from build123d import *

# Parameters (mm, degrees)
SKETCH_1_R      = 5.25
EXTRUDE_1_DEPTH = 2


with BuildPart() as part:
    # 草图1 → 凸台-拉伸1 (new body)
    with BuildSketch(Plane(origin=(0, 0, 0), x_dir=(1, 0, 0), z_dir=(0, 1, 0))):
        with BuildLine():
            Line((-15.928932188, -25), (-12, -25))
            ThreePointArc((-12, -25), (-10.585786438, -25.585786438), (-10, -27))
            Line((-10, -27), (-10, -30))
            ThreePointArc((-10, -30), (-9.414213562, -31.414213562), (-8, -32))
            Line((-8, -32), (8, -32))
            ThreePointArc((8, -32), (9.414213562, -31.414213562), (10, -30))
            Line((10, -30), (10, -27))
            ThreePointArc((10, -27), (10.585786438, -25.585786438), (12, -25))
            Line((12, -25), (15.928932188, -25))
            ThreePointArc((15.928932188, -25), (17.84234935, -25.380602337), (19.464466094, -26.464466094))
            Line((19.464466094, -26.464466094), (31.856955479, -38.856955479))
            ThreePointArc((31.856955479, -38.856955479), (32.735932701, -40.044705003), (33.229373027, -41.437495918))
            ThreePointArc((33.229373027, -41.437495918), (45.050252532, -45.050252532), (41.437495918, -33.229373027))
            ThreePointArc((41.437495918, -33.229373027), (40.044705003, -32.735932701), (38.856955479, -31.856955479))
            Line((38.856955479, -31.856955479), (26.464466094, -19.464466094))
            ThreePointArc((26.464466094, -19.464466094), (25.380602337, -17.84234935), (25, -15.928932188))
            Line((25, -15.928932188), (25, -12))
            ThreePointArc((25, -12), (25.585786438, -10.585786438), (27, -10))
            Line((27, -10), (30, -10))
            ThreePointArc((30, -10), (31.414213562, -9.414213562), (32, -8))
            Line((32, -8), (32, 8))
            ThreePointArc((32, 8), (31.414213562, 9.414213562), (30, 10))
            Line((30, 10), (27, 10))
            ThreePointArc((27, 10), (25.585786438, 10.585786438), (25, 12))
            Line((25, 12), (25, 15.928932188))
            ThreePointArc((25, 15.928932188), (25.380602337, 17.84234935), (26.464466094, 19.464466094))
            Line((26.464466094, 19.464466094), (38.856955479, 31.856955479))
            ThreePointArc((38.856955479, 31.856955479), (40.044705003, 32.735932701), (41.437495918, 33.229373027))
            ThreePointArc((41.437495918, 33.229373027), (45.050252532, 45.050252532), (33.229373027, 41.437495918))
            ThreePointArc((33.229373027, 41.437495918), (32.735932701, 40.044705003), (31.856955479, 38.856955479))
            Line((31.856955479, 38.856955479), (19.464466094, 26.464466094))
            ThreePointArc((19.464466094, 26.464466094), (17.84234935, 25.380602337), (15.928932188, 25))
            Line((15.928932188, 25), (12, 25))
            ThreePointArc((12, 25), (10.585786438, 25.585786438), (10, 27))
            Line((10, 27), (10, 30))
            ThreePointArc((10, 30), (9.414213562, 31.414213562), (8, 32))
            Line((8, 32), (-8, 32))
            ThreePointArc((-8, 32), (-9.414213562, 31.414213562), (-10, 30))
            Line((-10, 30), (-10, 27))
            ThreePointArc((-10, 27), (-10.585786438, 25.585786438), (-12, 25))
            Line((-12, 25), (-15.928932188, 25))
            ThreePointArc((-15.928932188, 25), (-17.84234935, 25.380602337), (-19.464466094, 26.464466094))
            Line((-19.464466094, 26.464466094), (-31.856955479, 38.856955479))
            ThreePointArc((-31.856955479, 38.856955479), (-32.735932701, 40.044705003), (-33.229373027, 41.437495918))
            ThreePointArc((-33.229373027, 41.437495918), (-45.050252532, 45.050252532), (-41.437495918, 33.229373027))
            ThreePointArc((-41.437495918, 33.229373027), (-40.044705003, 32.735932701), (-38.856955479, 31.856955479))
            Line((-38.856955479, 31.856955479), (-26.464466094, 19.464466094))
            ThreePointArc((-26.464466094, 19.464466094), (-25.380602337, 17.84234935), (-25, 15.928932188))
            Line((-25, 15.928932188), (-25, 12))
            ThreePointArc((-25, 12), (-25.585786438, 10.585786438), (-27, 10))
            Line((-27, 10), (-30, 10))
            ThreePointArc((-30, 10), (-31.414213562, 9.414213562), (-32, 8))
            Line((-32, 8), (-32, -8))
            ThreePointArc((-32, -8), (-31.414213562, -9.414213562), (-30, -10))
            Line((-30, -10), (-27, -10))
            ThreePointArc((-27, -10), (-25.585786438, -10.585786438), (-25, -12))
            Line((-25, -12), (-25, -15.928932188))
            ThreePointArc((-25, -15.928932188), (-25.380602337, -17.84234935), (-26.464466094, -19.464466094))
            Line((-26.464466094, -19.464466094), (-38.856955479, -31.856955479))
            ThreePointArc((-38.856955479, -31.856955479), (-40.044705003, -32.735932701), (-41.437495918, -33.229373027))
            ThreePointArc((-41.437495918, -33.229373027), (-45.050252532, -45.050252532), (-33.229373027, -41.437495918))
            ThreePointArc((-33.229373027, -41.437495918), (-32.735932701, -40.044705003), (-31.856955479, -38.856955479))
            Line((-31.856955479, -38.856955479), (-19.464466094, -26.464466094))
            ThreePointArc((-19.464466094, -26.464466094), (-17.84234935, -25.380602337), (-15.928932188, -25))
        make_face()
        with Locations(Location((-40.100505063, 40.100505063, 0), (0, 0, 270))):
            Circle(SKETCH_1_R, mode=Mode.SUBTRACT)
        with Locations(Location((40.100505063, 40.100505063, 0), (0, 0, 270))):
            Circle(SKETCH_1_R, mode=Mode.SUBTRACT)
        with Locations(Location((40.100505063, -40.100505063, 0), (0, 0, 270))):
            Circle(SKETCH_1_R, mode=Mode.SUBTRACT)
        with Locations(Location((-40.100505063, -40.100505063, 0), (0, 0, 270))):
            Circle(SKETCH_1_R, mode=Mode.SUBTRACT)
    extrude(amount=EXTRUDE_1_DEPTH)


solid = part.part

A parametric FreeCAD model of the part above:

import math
import FreeCAD as App
import Part
import Sketcher

V = App.Vector

doc = App.newDocument("Part")
body = doc.addObject("PartDesign::Body", "Body")

sketch1 = body.newObject("Sketcher::SketchObject", "Sketch")
sketch1.AttachmentSupport = (doc.getObject("XZ_Plane"), [""])
sketch1.MapMode = "FlatFace"
sketch1.addGeometry(Part.LineSegment(V(-15.9, 25, 0), V(-12, 25, 0)), False)
sketch1.addGeometry(Part.ArcOfCircle(Part.Circle(V(-12, 27, 0), V(0, 0, 1), 2), math.radians(-90), math.radians(0)), False)
sketch1.addGeometry(Part.LineSegment(V(-10, 27, 0), V(-10, 30, 0)), False)
sketch1.addGeometry(Part.ArcOfCircle(Part.Circle(V(-8, 30, 0), V(0, 0, 1), 2), math.radians(90), math.radians(180)), False)
sketch1.addGeometry(Part.LineSegment(V(-8, 32, 0), V(8, 32, 0)), False)
sketch1.addGeometry(Part.ArcOfCircle(Part.Circle(V(8, 30, 0), V(0, 0, 1), 2), math.radians(0), math.radians(90)), False)
sketch1.addGeometry(Part.LineSegment(V(10, 30, 0), V(10, 27, 0)), False)
sketch1.addGeometry(Part.ArcOfCircle(Part.Circle(V(12, 27, 0), V(0, 0, 1), 2), math.radians(-180), math.radians(-90)), False)
sketch1.addGeometry(Part.LineSegment(V(12, 25, 0), V(15.9, 25, 0)), False)
sketch1.addGeometry(Part.ArcOfCircle(Part.Circle(V(15.9, 30, 0), V(0, 0, 1), 5), math.radians(-90), math.radians(-45)), False)
sketch1.addGeometry(Part.LineSegment(V(19.5, 26.5, 0), V(31.9, 38.9, 0)), False)
sketch1.addGeometry(Part.ArcOfCircle(Part.Circle(V(28.3, 42.4, 0), V(0, 0, 1), 5), math.radians(-45), math.radians(-11)), False)
sketch1.addGeometry(Part.ArcOfCircle(Part.Circle(V(40.1, 40.1, 0), V(0, 0, 1), 7), math.radians(-79), math.radians(169)), False)
sketch1.addGeometry(Part.ArcOfCircle(Part.Circle(V(42.4, 28.3, 0), V(0, 0, 1), 5), math.radians(101), math.radians(135)), False)
sketch1.addGeometry(Part.LineSegment(V(38.9, 31.9, 0), V(26.5, 19.5, 0)), False)
sketch1.addGeometry(Part.ArcOfCircle(Part.Circle(V(30, 15.9, 0), V(0, 0, 1), 5), math.radians(135), math.radians(180)), False)
sketch1.addGeometry(Part.LineSegment(V(25, 15.9, 0), V(25, 12, 0)), False)
sketch1.addGeometry(Part.ArcOfCircle(Part.Circle(V(27, 12, 0), V(0, 0, 1), 2), math.radians(-180), math.radians(-90)), False)
sketch1.addGeometry(Part.LineSegment(V(27, 10, 0), V(30, 10, 0)), False)
sketch1.addGeometry(Part.ArcOfCircle(Part.Circle(V(30, 8, 0), V(0, 0, 1), 2), math.radians(0), math.radians(90)), False)
sketch1.addGeometry(Part.LineSegment(V(32, 8, 0), V(32, -8, 0)), False)
sketch1.addGeometry(Part.ArcOfCircle(Part.Circle(V(30, -8, 0), V(0, 0, 1), 2), math.radians(-90), math.radians(0)), False)
sketch1.addGeometry(Part.LineSegment(V(30, -10, 0), V(27, -10, 0)), False)
sketch1.addGeometry(Part.ArcOfCircle(Part.Circle(V(27, -12, 0), V(0, 0, 1), 2), math.radians(90), math.radians(180)), False)
sketch1.addGeometry(Part.LineSegment(V(25, -12, 0), V(25, -15.9, 0)), False)
sketch1.addGeometry(Part.ArcOfCircle(Part.Circle(V(30, -15.9, 0), V(0, 0, 1), 5), math.radians(180), math.radians(225)), False)
sketch1.addGeometry(Part.LineSegment(V(26.5, -19.5, 0), V(38.9, -31.9, 0)), False)
sketch1.addGeometry(Part.ArcOfCircle(Part.Circle(V(42.4, -28.3, 0), V(0, 0, 1), 5), math.radians(-135), math.radians(-101)), False)
sketch1.addGeometry(Part.ArcOfCircle(Part.Circle(V(40.1, -40.1, 0), V(0, 0, 1), 7), math.radians(-169), math.radians(79)), False)
sketch1.addGeometry(Part.ArcOfCircle(Part.Circle(V(28.3, -42.4, 0), V(0, 0, 1), 5), math.radians(11), math.radians(45)), False)
sketch1.addGeometry(Part.LineSegment(V(31.9, -38.9, 0), V(19.5, -26.5, 0)), False)
sketch1.addGeometry(Part.ArcOfCircle(Part.Circle(V(15.9, -30, 0), V(0, 0, 1), 5), math.radians(45), math.radians(90)), False)
sketch1.addGeometry(Part.LineSegment(V(15.9, -25, 0), V(12, -25, 0)), False)
sketch1.addGeometry(Part.ArcOfCircle(Part.Circle(V(12, -27, 0), V(0, 0, 1), 2), math.radians(90), math.radians(180)), False)
sketch1.addGeometry(Part.LineSegment(V(10, -27, 0), V(10, -30, 0)), False)
sketch1.addGeometry(Part.ArcOfCircle(Part.Circle(V(8, -30, 0), V(0, 0, 1), 2), math.radians(-90), math.radians(0)), False)
sketch1.addGeometry(Part.LineSegment(V(8, -32, 0), V(-8, -32, 0)), False)
sketch1.addGeometry(Part.ArcOfCircle(Part.Circle(V(-8, -30, 0), V(0, 0, 1), 2), math.radians(-180), math.radians(-90)), False)
sketch1.addGeometry(Part.LineSegment(V(-10, -30, 0), V(-10, -27, 0)), False)
sketch1.addGeometry(Part.ArcOfCircle(Part.Circle(V(-12, -27, 0), V(0, 0, 1), 2), math.radians(0), math.radians(90)), False)
sketch1.addGeometry(Part.LineSegment(V(-12, -25, 0), V(-15.9, -25, 0)), False)
sketch1.addGeometry(Part.ArcOfCircle(Part.Circle(V(-15.9, -30, 0), V(0, 0, 1), 5), math.radians(90), math.radians(135)), False)
sketch1.addGeometry(Part.LineSegment(V(-19.5, -26.5, 0), V(-31.9, -38.9, 0)), False)
sketch1.addGeometry(Part.ArcOfCircle(Part.Circle(V(-28.3, -42.4, 0), V(0, 0, 1), 5), math.radians(135), math.radians(169)), False)
sketch1.addGeometry(Part.ArcOfCircle(Part.Circle(V(-40.1, -40.1, 0), V(0, 0, 1), 7), math.radians(101), math.radians(349)), False)
sketch1.addGeometry(Part.ArcOfCircle(Part.Circle(V(-42.4, -28.3, 0), V(0, 0, 1), 5), math.radians(-79), math.radians(-45)), False)
sketch1.addGeometry(Part.LineSegment(V(-38.9, -31.9, 0), V(-26.5, -19.5, 0)), False)
sketch1.addGeometry(Part.ArcOfCircle(Part.Circle(V(-30, -15.9, 0), V(0, 0, 1), 5), math.radians(-45), math.radians(0)), False)
sketch1.addGeometry(Part.LineSegment(V(-25, -15.9, 0), V(-25, -12, 0)), False)
sketch1.addGeometry(Part.ArcOfCircle(Part.Circle(V(-27, -12, 0), V(0, 0, 1), 2), math.radians(0), math.radians(90)), False)
sketch1.addGeometry(Part.LineSegment(V(-27, -10, 0), V(-30, -10, 0)), False)
sketch1.addGeometry(Part.ArcOfCircle(Part.Circle(V(-30, -8, 0), V(0, 0, 1), 2), math.radians(-180), math.radians(-90)), False)
sketch1.addGeometry(Part.LineSegment(V(-32, -8, 0), V(-32, 8, 0)), False)
sketch1.addGeometry(Part.ArcOfCircle(Part.Circle(V(-30, 8, 0), V(0, 0, 1), 2), math.radians(90), math.radians(180)), False)
sketch1.addGeometry(Part.LineSegment(V(-30, 10, 0), V(-27, 10, 0)), False)
sketch1.addGeometry(Part.ArcOfCircle(Part.Circle(V(-27, 12, 0), V(0, 0, 1), 2), math.radians(-90), math.radians(0)), False)
sketch1.addGeometry(Part.LineSegment(V(-25, 12, 0), V(-25, 15.9, 0)), False)
sketch1.addGeometry(Part.ArcOfCircle(Part.Circle(V(-30, 15.9, 0), V(0, 0, 1), 5), math.radians(0), math.radians(45)), False)
sketch1.addGeometry(Part.LineSegment(V(-26.5, 19.5, 0), V(-38.9, 31.9, 0)), False)
sketch1.addGeometry(Part.ArcOfCircle(Part.Circle(V(-42.4, 28.3, 0), V(0, 0, 1), 5), math.radians(45), math.radians(79)), False)
sketch1.addGeometry(Part.ArcOfCircle(Part.Circle(V(-40.1, 40.1, 0), V(0, 0, 1), 7), math.radians(11), math.radians(259)), False)
sketch1.addGeometry(Part.ArcOfCircle(Part.Circle(V(-28.3, 42.4, 0), V(0, 0, 1), 5), math.radians(-169), math.radians(-135)), False)
sketch1.addGeometry(Part.LineSegment(V(-31.9, 38.9, 0), V(-19.5, 26.5, 0)), False)
sketch1.addGeometry(Part.ArcOfCircle(Part.Circle(V(-15.9, 30, 0), V(0, 0, 1), 5), math.radians(-135), math.radians(-90)), False)
sketch1.addGeometry(Part.Circle(V(-40.1, 40.1, 0), V(0, 0, 1), 5.2), False)
sketch1.addGeometry(Part.Circle(V(40.1, 40.1, 0), V(0, 0, 1), 5.2), False)
sketch1.addGeometry(Part.Circle(V(-40.1, -40.1, 0), V(0, 0, 1), 5.2), False)
sketch1.addGeometry(Part.Circle(V(40.1, -40.1, 0), V(0, 0, 1), 5.2), False)
sketch1.addConstraint(Sketcher.Constraint("Tangent", 0, 2, 1, 1))
sketch1.addConstraint(Sketcher.Constraint("Tangent", 1, 2, 2, 1))
sketch1.addConstraint(Sketcher.Constraint("Tangent", 2, 2, 3, 2))
sketch1.addConstraint(Sketcher.Constraint("Tangent", 3, 1, 4, 1))
sketch1.addConstraint(Sketcher.Constraint("Tangent", 4, 2, 5, 2))
sketch1.addConstraint(Sketcher.Constraint("Tangent", 5, 1, 6, 1))
sketch1.addConstraint(Sketcher.Constraint("Tangent", 6, 2, 7, 1))
sketch1.addConstraint(Sketcher.Constraint("Tangent", 7, 2, 8, 1))
sketch1.addConstraint(Sketcher.Constraint("Tangent", 8, 2, 9, 1))
sketch1.addConstraint(Sketcher.Constraint("Tangent", 9, 2, 10, 1))
sketch1.addConstraint(Sketcher.Constraint("Tangent", 10, 2, 11, 1))
sketch1.addConstraint(Sketcher.Constraint("Tangent", 11, 2, 12, 2))
sketch1.addConstraint(Sketcher.Constraint("Tangent", 12, 1, 13, 1))
sketch1.addConstraint(Sketcher.Constraint("Tangent", 13, 2, 14, 1))
sketch1.addConstraint(Sketcher.Constraint("Tangent", 14, 2, 15, 1))
sketch1.addConstraint(Sketcher.Constraint("Tangent", 15, 2, 16, 1))
sketch1.addConstraint(Sketcher.Constraint("Tangent", 16, 2, 17, 1))
sketch1.addConstraint(Sketcher.Constraint("Tangent", 17, 2, 18, 1))
sketch1.addConstraint(Sketcher.Constraint("Tangent", 18, 2, 19, 2))
sketch1.addConstraint(Sketcher.Constraint("Tangent", 19, 1, 20, 1))
sketch1.addConstraint(Sketcher.Constraint("Tangent", 20, 2, 21, 2))
sketch1.addConstraint(Sketcher.Constraint("Tangent", 21, 1, 22, 1))
sketch1.addConstraint(Sketcher.Constraint("Tangent", 22, 2, 23, 1))
sketch1.addConstraint(Sketcher.Constraint("Tangent", 23, 2, 24, 1))
sketch1.addConstraint(Sketcher.Constraint("Tangent", 24, 2, 25, 1))
sketch1.addConstraint(Sketcher.Constraint("Tangent", 25, 2, 26, 1))
sketch1.addConstraint(Sketcher.Constraint("Tangent", 26, 2, 27, 1))
sketch1.addConstraint(Sketcher.Constraint("Tangent", 27, 2, 28, 2))
sketch1.addConstraint(Sketcher.Constraint("Tangent", 28, 1, 29, 1))
sketch1.addConstraint(Sketcher.Constraint("Tangent", 29, 2, 30, 1))
sketch1.addConstraint(Sketcher.Constraint("Tangent", 30, 2, 31, 1))
sketch1.addConstraint(Sketcher.Constraint("Tangent", 31, 2, 32, 1))
sketch1.addConstraint(Sketcher.Constraint("Tangent", 32, 2, 33, 1))
sketch1.addConstraint(Sketcher.Constraint("Tangent", 33, 2, 34, 1))
sketch1.addConstraint(Sketcher.Constraint("Tangent", 34, 2, 35, 2))
sketch1.addConstraint(Sketcher.Constraint("Tangent", 35, 1, 36, 1))
sketch1.addConstraint(Sketcher.Constraint("Tangent", 36, 2, 37, 2))
sketch1.addConstraint(Sketcher.Constraint("Tangent", 37, 1, 38, 1))
sketch1.addConstraint(Sketcher.Constraint("Tangent", 38, 2, 39, 1))
sketch1.addConstraint(Sketcher.Constraint("Tangent", 39, 2, 40, 1))
sketch1.addConstraint(Sketcher.Constraint("Tangent", 40, 2, 41, 1))
sketch1.addConstraint(Sketcher.Constraint("Tangent", 41, 2, 42, 1))
sketch1.addConstraint(Sketcher.Constraint("Tangent", 42, 2, 43, 1))
sketch1.addConstraint(Sketcher.Constraint("Tangent", 43, 2, 44, 2))
sketch1.addConstraint(Sketcher.Constraint("Tangent", 44, 1, 45, 1))
sketch1.addConstraint(Sketcher.Constraint("Tangent", 45, 2, 46, 1))
sketch1.addConstraint(Sketcher.Constraint("Tangent", 46, 2, 47, 1))
sketch1.addConstraint(Sketcher.Constraint("Tangent", 47, 2, 48, 1))
sketch1.addConstraint(Sketcher.Constraint("Tangent", 48, 2, 49, 1))
sketch1.addConstraint(Sketcher.Constraint("Tangent", 49, 2, 50, 1))
sketch1.addConstraint(Sketcher.Constraint("Tangent", 50, 2, 51, 2))
sketch1.addConstraint(Sketcher.Constraint("Tangent", 51, 1, 52, 1))
sketch1.addConstraint(Sketcher.Constraint("Tangent", 52, 2, 53, 2))
sketch1.addConstraint(Sketcher.Constraint("Tangent", 53, 1, 54, 1))
sketch1.addConstraint(Sketcher.Constraint("Tangent", 54, 2, 55, 1))
sketch1.addConstraint(Sketcher.Constraint("Tangent", 55, 2, 56, 1))
sketch1.addConstraint(Sketcher.Constraint("Tangent", 56, 2, 57, 1))
sketch1.addConstraint(Sketcher.Constraint("Tangent", 57, 2, 58, 1))
sketch1.addConstraint(Sketcher.Constraint("Tangent", 58, 2, 59, 1))
sketch1.addConstraint(Sketcher.Constraint("Tangent", 59, 2, 60, 2))
sketch1.addConstraint(Sketcher.Constraint("Tangent", 60, 1, 61, 1))
sketch1.addConstraint(Sketcher.Constraint("Tangent", 61, 2, 62, 1))
sketch1.addConstraint(Sketcher.Constraint("Tangent", 62, 2, 63, 1))
sketch1.addConstraint(Sketcher.Constraint("Tangent", 63, 2, 0, 1))
sketch1.addConstraint(Sketcher.Constraint("Horizontal", 0))
sketch1.addConstraint(Sketcher.Constraint("Vertical", 2))
sketch1.addConstraint(Sketcher.Constraint("Horizontal", 4))
sketch1.addConstraint(Sketcher.Constraint("Vertical", 6))
sketch1.addConstraint(Sketcher.Constraint("Horizontal", 8))
sketch1.addConstraint(Sketcher.Constraint("Vertical", 16))
sketch1.addConstraint(Sketcher.Constraint("Horizontal", 18))
sketch1.addConstraint(Sketcher.Constraint("Vertical", 20))
sketch1.addConstraint(Sketcher.Constraint("Horizontal", 22))
sketch1.addConstraint(Sketcher.Constraint("Vertical", 24))
sketch1.addConstraint(Sketcher.Constraint("Horizontal", 32))
sketch1.addConstraint(Sketcher.Constraint("Vertical", 34))
sketch1.addConstraint(Sketcher.Constraint("Horizontal", 36))
sketch1.addConstraint(Sketcher.Constraint("Vertical", 38))
sketch1.addConstraint(Sketcher.Constraint("Horizontal", 40))
sketch1.addConstraint(Sketcher.Constraint("Vertical", 48))
sketch1.addConstraint(Sketcher.Constraint("Horizontal", 50))
sketch1.addConstraint(Sketcher.Constraint("Vertical", 52))
sketch1.addConstraint(Sketcher.Constraint("Horizontal", 54))
sketch1.addConstraint(Sketcher.Constraint("Vertical", 56))
sketch1.addConstraint(Sketcher.Constraint("Coincident", 64, 3, 60, 3))
sketch1.addConstraint(Sketcher.Constraint("Coincident", 65, 3, 12, 3))
sketch1.addConstraint(Sketcher.Constraint("Coincident", 66, 3, 44, 3))
sketch1.addConstraint(Sketcher.Constraint("Coincident", 67, 3, 28, 3))
sketch1.addConstraint(Sketcher.Constraint("Equal", 1, 3))
sketch1.addConstraint(Sketcher.Constraint("Equal", 3, 5))
sketch1.addConstraint(Sketcher.Constraint("Equal", 5, 7))
sketch1.addConstraint(Sketcher.Constraint("Equal", 9, 11))
sketch1.addConstraint(Sketcher.Constraint("Equal", 11, 13))
sketch1.addConstraint(Sketcher.Constraint("Equal", 13, 15))
sketch1.addConstraint(Sketcher.Constraint("Equal", 7, 17))
sketch1.addConstraint(Sketcher.Constraint("Equal", 17, 19))
sketch1.addConstraint(Sketcher.Constraint("Equal", 19, 21))
sketch1.addConstraint(Sketcher.Constraint("Equal", 21, 23))
sketch1.addConstraint(Sketcher.Constraint("Equal", 15, 25))
sketch1.addConstraint(Sketcher.Constraint("Equal", 25, 27))
sketch1.addConstraint(Sketcher.Constraint("Equal", 12, 28))
sketch1.addConstraint(Sketcher.Constraint("Equal", 27, 29))
sketch1.addConstraint(Sketcher.Constraint("Equal", 29, 31))
sketch1.addConstraint(Sketcher.Constraint("Equal", 23, 33))
sketch1.addConstraint(Sketcher.Constraint("Equal", 33, 35))
sketch1.addConstraint(Sketcher.Constraint("Equal", 35, 37))
sketch1.addConstraint(Sketcher.Constraint("Equal", 37, 39))
sketch1.addConstraint(Sketcher.Constraint("Equal", 31, 41))
sketch1.addConstraint(Sketcher.Constraint("Equal", 41, 43))
sketch1.addConstraint(Sketcher.Constraint("Equal", 28, 44))
sketch1.addConstraint(Sketcher.Constraint("Equal", 43, 45))
sketch1.addConstraint(Sketcher.Constraint("Equal", 45, 47))
sketch1.addConstraint(Sketcher.Constraint("Equal", 39, 49))
sketch1.addConstraint(Sketcher.Constraint("Equal", 49, 51))
sketch1.addConstraint(Sketcher.Constraint("Equal", 51, 53))
sketch1.addConstraint(Sketcher.Constraint("Equal", 53, 55))
sketch1.addConstraint(Sketcher.Constraint("Equal", 47, 57))
sketch1.addConstraint(Sketcher.Constraint("Equal", 57, 59))
sketch1.addConstraint(Sketcher.Constraint("Equal", 44, 60))
sketch1.addConstraint(Sketcher.Constraint("Equal", 59, 61))
sketch1.addConstraint(Sketcher.Constraint("Equal", 61, 63))
sketch1.addConstraint(Sketcher.Constraint("Equal", 64, 65))
sketch1.addConstraint(Sketcher.Constraint("Equal", 65, 66))
sketch1.addConstraint(Sketcher.Constraint("Equal", 66, 67))
sketch1.addConstraint(Sketcher.Constraint("Symmetric", 1, 3, 33, 3, -1, 1))
sketch1.addConstraint(Sketcher.Constraint("Symmetric", 5, 3, 37, 3, -1, 1))
sketch1.addConstraint(Sketcher.Constraint("Symmetric", 9, 3, 41, 3, -1, 1))
sketch1.addConstraint(Sketcher.Constraint("Symmetric", 11, 3, 43, 3, -1, 1))
sketch1.addConstraint(Sketcher.Constraint("Symmetric", 13, 3, 45, 3, -1, 1))
sketch1.addConstraint(Sketcher.Constraint("Symmetric", 15, 3, 47, 3, -1, 1))
sketch1.addConstraint(Sketcher.Constraint("Symmetric", 19, 3, 51, 3, -1, 1))
sketch1.addConstraint(Sketcher.Constraint("Symmetric", 23, 3, 55, 3, -1, 1))
sketch1.addConstraint(Sketcher.Constraint("Symmetric", 27, 3, 59, 3, -1, 1))
sketch1.addConstraint(Sketcher.Constraint("Symmetric", 29, 3, 61, 3, -1, 1))
sketch1.addConstraint(Sketcher.Constraint("Symmetric", 1, 3, 7, 3, -2))
sketch1.addConstraint(Sketcher.Constraint("Symmetric", 29, 3, 43, 3, -2))
sketch1.addConstraint(Sketcher.Constraint("Symmetric", 27, 3, 45, 3, -2))
sketch1.addConstraint(Sketcher.Constraint("Symmetric", 25, 3, 47, 3, -2))
sketch1.addConstraint(Sketcher.Constraint("Parallel", 10, 14))
sketch1.addConstraint(Sketcher.Constraint("Perpendicular", 14, 26))
sketch1.addConstraint(Sketcher.Constraint("Parallel", 26, 30))
sketch1.addConstraint(Sketcher.Constraint("Perpendicular", 46, 58))
sketch1.addConstraint(Sketcher.Constraint("Parallel", 58, 62))
sketch1.addConstraint(Sketcher.Constraint("Horizontal", 5, 3, 9, 3))
sketch1.addConstraint(Sketcher.Constraint("Horizontal", 23, 3, 49, 3))
sketch1.addConstraint(Sketcher.Constraint("Vertical", 15, 3, 19, 3))
sketch1.addConstraint(Sketcher.Constraint("Equal", 40, 16))
sketch1.addConstraint(Sketcher.Constraint("Equal", 36, 20))
sketch1.addConstraint(Sketcher.Constraint("Equal", 10, 14))
sketch1.addConstraint(Sketcher.Constraint("Radius", 1, 2.0))
sketch1.addConstraint(Sketcher.Constraint("Radius", 9, 5.0))
sketch1.addConstraint(Sketcher.Constraint("Radius", 12, 7.0))
sketch1.addConstraint(Sketcher.Constraint("Diameter", 64, 10.5))
sketch1.addConstraint(Sketcher.Constraint("DistanceX", 4, 1, 4, 2, 16.0))
sketch1.addConstraint(Sketcher.Constraint("DistanceY", -1, 1, 1, 3, 27.0))
sketch1.addConstraint(Sketcher.Constraint("DistanceX", -1, 1, 15, 3, 30.0))
sketch1.addConstraint(Sketcher.Constraint("DistanceX", 0, 1, 0, 2, 3.928932))
sketch1.addConstraint(Sketcher.Constraint("DistanceX", -1, 1, 11, 3, 28.321422))
pad1 = body.newObject("PartDesign::Pad", "Pad")
pad1.Profile = sketch1
pad1.Length = 2
pad1.Reversed = True

doc.recompute()
